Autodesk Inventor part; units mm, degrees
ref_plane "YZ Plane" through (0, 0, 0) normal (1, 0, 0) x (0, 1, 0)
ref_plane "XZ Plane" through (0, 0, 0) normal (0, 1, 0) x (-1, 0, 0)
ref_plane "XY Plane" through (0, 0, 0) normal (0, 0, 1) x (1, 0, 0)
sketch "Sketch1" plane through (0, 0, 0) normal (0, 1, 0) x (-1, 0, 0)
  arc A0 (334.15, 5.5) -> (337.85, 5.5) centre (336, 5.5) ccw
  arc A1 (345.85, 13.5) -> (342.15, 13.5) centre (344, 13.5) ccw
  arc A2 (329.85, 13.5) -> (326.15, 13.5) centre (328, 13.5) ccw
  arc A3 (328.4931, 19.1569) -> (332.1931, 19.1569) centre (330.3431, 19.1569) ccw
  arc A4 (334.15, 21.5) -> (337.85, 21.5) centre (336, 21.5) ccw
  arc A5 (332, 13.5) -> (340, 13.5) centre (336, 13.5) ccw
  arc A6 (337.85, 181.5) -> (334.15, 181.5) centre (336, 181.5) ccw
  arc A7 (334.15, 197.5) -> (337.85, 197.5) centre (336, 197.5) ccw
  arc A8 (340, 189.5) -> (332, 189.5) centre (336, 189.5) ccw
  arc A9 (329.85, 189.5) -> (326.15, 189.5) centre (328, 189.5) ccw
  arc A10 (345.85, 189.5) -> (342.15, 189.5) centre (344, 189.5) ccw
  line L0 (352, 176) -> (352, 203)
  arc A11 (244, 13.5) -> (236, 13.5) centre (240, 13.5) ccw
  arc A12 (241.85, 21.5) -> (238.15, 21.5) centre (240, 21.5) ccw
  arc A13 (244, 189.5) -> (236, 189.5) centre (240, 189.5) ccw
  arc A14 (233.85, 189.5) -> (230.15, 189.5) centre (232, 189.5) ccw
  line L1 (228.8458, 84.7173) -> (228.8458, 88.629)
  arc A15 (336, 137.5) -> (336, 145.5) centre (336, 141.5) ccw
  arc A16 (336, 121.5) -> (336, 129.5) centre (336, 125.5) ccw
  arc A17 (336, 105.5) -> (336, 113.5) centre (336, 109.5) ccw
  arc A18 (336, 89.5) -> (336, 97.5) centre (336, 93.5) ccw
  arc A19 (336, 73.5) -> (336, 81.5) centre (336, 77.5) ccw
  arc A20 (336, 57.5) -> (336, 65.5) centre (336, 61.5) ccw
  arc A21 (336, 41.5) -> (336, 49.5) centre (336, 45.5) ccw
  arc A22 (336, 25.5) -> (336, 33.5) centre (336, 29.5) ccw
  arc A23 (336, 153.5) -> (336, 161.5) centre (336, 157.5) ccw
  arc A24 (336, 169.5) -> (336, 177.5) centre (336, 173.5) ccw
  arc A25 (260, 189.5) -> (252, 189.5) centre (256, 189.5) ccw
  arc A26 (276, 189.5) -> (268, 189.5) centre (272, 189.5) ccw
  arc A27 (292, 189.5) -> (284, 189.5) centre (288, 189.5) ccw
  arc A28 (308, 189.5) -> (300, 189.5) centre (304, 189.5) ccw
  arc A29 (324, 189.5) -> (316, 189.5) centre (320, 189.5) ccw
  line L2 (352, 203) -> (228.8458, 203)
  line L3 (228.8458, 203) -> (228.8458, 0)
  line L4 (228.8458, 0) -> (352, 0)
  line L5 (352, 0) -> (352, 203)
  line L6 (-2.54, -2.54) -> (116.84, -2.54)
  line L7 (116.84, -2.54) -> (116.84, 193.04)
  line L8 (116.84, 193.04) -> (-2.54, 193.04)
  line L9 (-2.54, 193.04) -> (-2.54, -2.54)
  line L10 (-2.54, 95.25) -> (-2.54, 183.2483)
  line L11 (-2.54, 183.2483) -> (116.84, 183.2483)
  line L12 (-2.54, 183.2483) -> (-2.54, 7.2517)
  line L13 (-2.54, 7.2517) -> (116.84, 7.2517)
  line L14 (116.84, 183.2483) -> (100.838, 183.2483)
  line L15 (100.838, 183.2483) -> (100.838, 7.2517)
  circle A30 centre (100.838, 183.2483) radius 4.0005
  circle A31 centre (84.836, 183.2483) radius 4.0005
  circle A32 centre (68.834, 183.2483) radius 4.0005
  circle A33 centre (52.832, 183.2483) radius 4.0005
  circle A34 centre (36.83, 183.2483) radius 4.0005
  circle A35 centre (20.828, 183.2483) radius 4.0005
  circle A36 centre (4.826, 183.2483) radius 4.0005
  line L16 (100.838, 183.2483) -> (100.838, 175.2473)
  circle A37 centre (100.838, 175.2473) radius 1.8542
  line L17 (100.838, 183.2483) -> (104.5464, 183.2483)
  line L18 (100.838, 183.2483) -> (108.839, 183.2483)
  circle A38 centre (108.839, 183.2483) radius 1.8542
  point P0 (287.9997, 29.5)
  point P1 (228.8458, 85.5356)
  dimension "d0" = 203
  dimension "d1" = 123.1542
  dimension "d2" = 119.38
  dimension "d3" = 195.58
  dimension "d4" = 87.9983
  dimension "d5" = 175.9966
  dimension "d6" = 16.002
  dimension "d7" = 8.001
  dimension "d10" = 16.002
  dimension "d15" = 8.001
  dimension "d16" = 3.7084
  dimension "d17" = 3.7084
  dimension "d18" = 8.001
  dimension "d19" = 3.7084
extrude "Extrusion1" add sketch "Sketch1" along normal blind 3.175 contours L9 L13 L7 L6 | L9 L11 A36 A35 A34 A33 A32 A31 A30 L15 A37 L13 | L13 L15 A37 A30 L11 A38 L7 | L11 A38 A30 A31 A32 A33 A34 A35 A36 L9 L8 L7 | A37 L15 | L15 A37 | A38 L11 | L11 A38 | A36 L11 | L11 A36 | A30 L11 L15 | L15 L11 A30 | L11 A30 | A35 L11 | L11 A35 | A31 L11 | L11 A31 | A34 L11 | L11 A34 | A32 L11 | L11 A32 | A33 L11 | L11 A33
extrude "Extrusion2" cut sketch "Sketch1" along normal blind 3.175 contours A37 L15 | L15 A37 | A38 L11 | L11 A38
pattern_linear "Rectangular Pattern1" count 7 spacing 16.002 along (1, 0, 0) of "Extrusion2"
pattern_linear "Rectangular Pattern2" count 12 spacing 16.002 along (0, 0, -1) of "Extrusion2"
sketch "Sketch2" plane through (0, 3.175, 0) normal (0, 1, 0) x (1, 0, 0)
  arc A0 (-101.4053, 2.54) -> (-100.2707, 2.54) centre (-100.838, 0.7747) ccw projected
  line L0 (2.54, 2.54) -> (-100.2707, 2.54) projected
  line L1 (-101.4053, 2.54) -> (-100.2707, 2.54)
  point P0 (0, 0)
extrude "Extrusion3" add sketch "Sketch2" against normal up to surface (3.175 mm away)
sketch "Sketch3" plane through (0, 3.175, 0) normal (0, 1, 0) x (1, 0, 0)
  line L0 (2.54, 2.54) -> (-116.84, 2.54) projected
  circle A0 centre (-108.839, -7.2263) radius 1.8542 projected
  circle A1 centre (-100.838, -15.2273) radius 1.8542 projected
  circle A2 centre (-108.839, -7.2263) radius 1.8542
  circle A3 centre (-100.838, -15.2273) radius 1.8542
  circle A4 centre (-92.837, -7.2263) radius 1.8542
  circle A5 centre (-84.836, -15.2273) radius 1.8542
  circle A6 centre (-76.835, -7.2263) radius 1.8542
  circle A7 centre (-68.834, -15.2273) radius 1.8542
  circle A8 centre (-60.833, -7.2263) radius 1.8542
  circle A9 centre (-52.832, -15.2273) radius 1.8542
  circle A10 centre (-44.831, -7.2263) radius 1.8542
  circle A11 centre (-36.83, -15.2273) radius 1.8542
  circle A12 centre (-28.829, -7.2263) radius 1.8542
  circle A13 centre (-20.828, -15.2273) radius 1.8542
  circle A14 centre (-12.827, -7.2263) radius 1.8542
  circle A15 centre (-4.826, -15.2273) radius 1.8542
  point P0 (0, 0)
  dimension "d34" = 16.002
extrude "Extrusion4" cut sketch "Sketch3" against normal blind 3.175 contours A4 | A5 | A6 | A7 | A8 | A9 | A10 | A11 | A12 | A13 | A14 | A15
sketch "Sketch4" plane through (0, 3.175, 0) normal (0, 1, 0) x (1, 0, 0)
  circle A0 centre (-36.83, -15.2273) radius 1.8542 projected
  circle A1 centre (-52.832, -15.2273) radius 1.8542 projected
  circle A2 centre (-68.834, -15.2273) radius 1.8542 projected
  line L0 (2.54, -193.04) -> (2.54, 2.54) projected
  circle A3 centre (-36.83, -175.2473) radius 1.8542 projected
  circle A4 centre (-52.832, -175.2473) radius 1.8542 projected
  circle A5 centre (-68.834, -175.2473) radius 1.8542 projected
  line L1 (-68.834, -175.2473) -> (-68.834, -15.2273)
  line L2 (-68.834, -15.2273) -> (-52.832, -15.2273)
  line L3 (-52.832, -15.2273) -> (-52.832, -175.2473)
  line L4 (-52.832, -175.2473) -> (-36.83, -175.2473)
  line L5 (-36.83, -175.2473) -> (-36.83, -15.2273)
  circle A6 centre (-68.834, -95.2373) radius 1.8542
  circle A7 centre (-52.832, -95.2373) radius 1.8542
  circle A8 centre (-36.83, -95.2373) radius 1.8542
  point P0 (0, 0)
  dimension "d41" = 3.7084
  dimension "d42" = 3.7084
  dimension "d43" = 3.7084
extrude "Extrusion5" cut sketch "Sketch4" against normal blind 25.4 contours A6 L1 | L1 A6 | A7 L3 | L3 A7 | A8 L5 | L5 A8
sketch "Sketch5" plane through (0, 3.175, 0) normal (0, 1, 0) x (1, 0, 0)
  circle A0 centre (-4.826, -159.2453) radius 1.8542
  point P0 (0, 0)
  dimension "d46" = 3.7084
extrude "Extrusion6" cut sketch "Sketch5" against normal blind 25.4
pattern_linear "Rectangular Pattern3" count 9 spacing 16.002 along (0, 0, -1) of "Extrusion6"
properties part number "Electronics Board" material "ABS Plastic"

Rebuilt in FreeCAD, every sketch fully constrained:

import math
import FreeCAD as App
import Part
import Sketcher

V = App.Vector
Q = App.Units.Quantity

doc = App.newDocument("Part")
body = doc.addObject("PartDesign::Body", "Body")

# Sketch on XZ plane
sketch1 = body.newObject("Sketcher::SketchObject", "Sketch")
sketch1.AttachmentSupport = (doc.getObject("XZ_Plane"), [""])
sketch1.MapMode = "FlatFace"
sketch1.addGeometry(Part.LineSegment(V(2.54, -2.54, 0), V(-116.84, -2.54, 0)), False)
sketch1.addGeometry(Part.LineSegment(V(-116.84, -2.54, 0), V(-116.84, 193.04, 0)), False)
sketch1.addGeometry(Part.LineSegment(V(-116.84, 193.04, 0), V(2.54, 193.04, 0)), False)
sketch1.addGeometry(Part.LineSegment(V(2.54, 193.04, 0), V(2.54, -2.54, 0)), False)
sketch1.addConstraint(Sketcher.Constraint("Coincident", 0, 2, 1, 1))
sketch1.addConstraint(Sketcher.Constraint("Coincident", 1, 2, 2, 1))
sketch1.addConstraint(Sketcher.Constraint("Coincident", 2, 2, 3, 1))
sketch1.addConstraint(Sketcher.Constraint("Coincident", 3, 2, 0, 1))
sketch1.addConstraint(Sketcher.Constraint("Horizontal", 0))
sketch1.addConstraint(Sketcher.Constraint("Vertical", 1))
sketch1.addConstraint(Sketcher.Constraint("Horizontal", 2))
sketch1.addConstraint(Sketcher.Constraint("Vertical", 3))
sketch1.addConstraint(Sketcher.Constraint("DistanceX", 0, 2, 0, 1, Q("4.7 in")))
sketch1.addConstraint(Sketcher.Constraint("DistanceY", 1, 1, 1, 2, Q("7.7 in")))
sketch1.addConstraint(Sketcher.Constraint("DistanceX", 0, 2, -1, 1, Q("4.6 in")))
sketch1.addConstraint(Sketcher.Constraint("DistanceY", 0, 2, -1, 1, Q("0.1 in")))
pad1 = body.newObject("PartDesign::Pad", "Pad")
pad1.Profile = sketch1
pad1.Length = Q("0.125 in")
pad1.Reversed = True

# Sketch on XZ plane
sketch2 = body.newObject("Sketcher::SketchObject", "Sketch001")
sketch2.AttachmentSupport = (doc.getObject("XZ_Plane"), [""])
sketch2.MapMode = "FlatFace"
sketch2.addGeometry(Part.Circle(V(-100.838, 175.2473, 0), V(0, 0, 1), 1.8542), False)
sketch2.addGeometry(Part.Circle(V(-108.839, 183.2483, 0), V(0, 0, 1), 1.8542), False)
sketch2.addConstraint(Sketcher.Constraint("Equal", 0, 1))
sketch2.addConstraint(Sketcher.Constraint("Diameter", 0, Q("0.146 in")))
sketch2.addConstraint(Sketcher.Constraint("DistanceX", 1, 3, 0, 3, Q("0.315 in")))
sketch2.addConstraint(Sketcher.Constraint("DistanceY", 0, 3, 1, 3, Q("0.315 in")))
sketch2.addConstraint(Sketcher.Constraint("DistanceX", 0, 3, -1, 1, Q("3.97 in")))
sketch2.addConstraint(Sketcher.Constraint("DistanceY", -1, 1, 0, 3, Q("6.8995 in")))
pocket1 = body.newObject("PartDesign::Pocket", "Pocket")
pocket1.Profile = sketch2
pocket1.Length = Q("0.125 in")
doc.recompute()

linearpattern = body.newObject("PartDesign::LinearPattern", "LinearPattern")
linearpattern.Originals = [pocket1]
linearpattern.Direction = (doc.getObject("X_Axis"), [""])
linearpattern.Mode = "offset"
linearpattern.Offset = Q("0.63 in")
linearpattern.Occurrences = 7
body.Tip = linearpattern
doc.recompute()

linearpattern2 = body.newObject("PartDesign::LinearPattern", "LinearPattern001")
linearpattern2.Originals = [pocket1]
linearpattern2.Direction = (doc.getObject("Z_Axis"), [""])
linearpattern2.Mode = "offset"
linearpattern2.Offset = Q("0.63 in")
linearpattern2.Occurrences = 12
linearpattern2.Reversed = True
body.Tip = linearpattern2

# Sketch on XZ plane
sketch3 = body.newObject("Sketcher::SketchObject", "Sketch002")
sketch3.AttachmentSupport = (doc.getObject("XZ_Plane"), [""])
sketch3.MapMode = "FlatFace"
sketch3.AttachmentOffset = App.Placement(V(0, 0, -0.125 * 25.4), App.Rotation())
sketch3.addGeometry(Part.LineSegment(V(-100.2707, -2.54, 0), V(-101.4053, -2.54, 0)), False)
sketch3.addGeometry(Part.ArcOfCircle(Part.Circle(V(-100.838, -0.7747, 0), V(0, 0, 1), 1.854215), math.radians(-72.184578), math.radians(252.184578)), False)
sketch3.addConstraint(Sketcher.Constraint("Coincident", 0, 1, 1, 1))
sketch3.addConstraint(Sketcher.Constraint("Coincident", 1, 2, 0, 2))
sketch3.addConstraint(Sketcher.Constraint("Horizontal", 0))
sketch3.addConstraint(Sketcher.Constraint("Radius", 1, Q("0.073 in")))
sketch3.addConstraint(Sketcher.Constraint("DistanceY", 0, 1, -1, 1, Q("0.1 in")))
sketch3.addConstraint(Sketcher.Constraint("DistanceX", 1, 3, -1, 1, Q("3.97 in")))
sketch3.addConstraint(Sketcher.Constraint("DistanceX", 0, 2, 0, 1, 1.1346))
pad2 = body.newObject("PartDesign::Pad", "Pad001")
pad2.Profile = sketch3
pad2.Length = Q("0.125 in")

# Sketch on XZ plane
sketch4 = body.newObject("Sketcher::SketchObject", "Sketch003")
sketch4.AttachmentSupport = (doc.getObject("XZ_Plane"), [""])
sketch4.MapMode = "FlatFace"
sketch4.AttachmentOffset = App.Placement(V(0, 0, -0.125 * 25.4), App.Rotation())
sketch4.addGeometry(Part.Circle(V(-92.837, 7.2263, 0), V(0, 0, 1), 1.8542), False)
sketch4.addGeometry(Part.Circle(V(-84.836, 15.2273, 0), V(0, 0, 1), 1.8542), False)
sketch4.addGeometry(Part.Circle(V(-76.835, 7.2263, 0), V(0, 0, 1), 1.8542), False)
sketch4.addGeometry(Part.Circle(V(-68.834, 15.2273, 0), V(0, 0, 1), 1.8542), False)
sketch4.addGeometry(Part.Circle(V(-60.833, 7.2263, 0), V(0, 0, 1), 1.8542), False)
sketch4.addGeometry(Part.Circle(V(-52.832, 15.2273, 0), V(0, 0, 1), 1.8542), False)
sketch4.addGeometry(Part.Circle(V(-44.831, 7.2263, 0), V(0, 0, 1), 1.8542), False)
sketch4.addGeometry(Part.Circle(V(-36.83, 15.2273, 0), V(0, 0, 1), 1.8542), False)
sketch4.addGeometry(Part.Circle(V(-28.829, 7.2263, 0), V(0, 0, 1), 1.8542), False)
sketch4.addGeometry(Part.Circle(V(-20.828, 15.2273, 0), V(0, 0, 1), 1.8542), False)
sketch4.addGeometry(Part.Circle(V(-12.827, 7.2263, 0), V(0, 0, 1), 1.8542), False)
sketch4.addGeometry(Part.Circle(V(-4.826, 15.2273, 0), V(0, 0, 1), 1.8542), False)
sketch4.addConstraint(Sketcher.Constraint("Equal", 0, 1))
sketch4.addConstraint(Sketcher.Constraint("Equal", 1, 2))
sketch4.addConstraint(Sketcher.Constraint("Equal", 2, 3))
sketch4.addConstraint(Sketcher.Constraint("Equal", 3, 4))
sketch4.addConstraint(Sketcher.Constraint("Equal", 4, 5))
sketch4.addConstraint(Sketcher.Constraint("Equal", 5, 6))
sketch4.addConstraint(Sketcher.Constraint("Equal", 6, 7))
sketch4.addConstraint(Sketcher.Constraint("Equal", 7, 8))
sketch4.addConstraint(Sketcher.Constraint("Equal", 8, 9))
sketch4.addConstraint(Sketcher.Constraint("Equal", 9, 10))
sketch4.addConstraint(Sketcher.Constraint("Equal", 10, 11))
sketch4.addConstraint(Sketcher.Constraint("Horizontal", 0, 3, 2, 3))
sketch4.addConstraint(Sketcher.Constraint("Horizontal", 1, 3, 3, 3))
sketch4.addConstraint(Sketcher.Constraint("Horizontal", 2, 3, 4, 3))
sketch4.addConstraint(Sketcher.Constraint("Horizontal", 3, 3, 5, 3))
sketch4.addConstraint(Sketcher.Constraint("Horizontal", 4, 3, 6, 3))
sketch4.addConstraint(Sketcher.Constraint("Horizontal", 5, 3, 7, 3))
sketch4.addConstraint(Sketcher.Constraint("Horizontal", 6, 3, 8, 3))
sketch4.addConstraint(Sketcher.Constraint("Horizontal", 7, 3, 9, 3))
sketch4.addConstraint(Sketcher.Constraint("Horizontal", 8, 3, 10, 3))
sketch4.addConstraint(Sketcher.Constraint("Horizontal", 9, 3, 11, 3))
sketch4.addConstraint(Sketcher.Constraint("DistanceX", 0, 3, 2, 3, Q("0.63 in")))
sketch4.addConstraint(Sketcher.Constraint("DistanceX", 1, 3, 3, 3, Q("0.63 in")))
sketch4.addConstraint(Sketcher.Constraint("DistanceX", 2, 3, 4, 3, Q("0.63 in")))
sketch4.addConstraint(Sketcher.Constraint("DistanceX", 3, 3, 5, 3, Q("0.63 in")))
sketch4.addConstraint(Sketcher.Constraint("DistanceX", 4, 3, 6, 3, Q("0.63 in")))
sketch4.addConstraint(Sketcher.Constraint("DistanceX", 5, 3, 7, 3, Q("0.63 in")))
sketch4.addConstraint(Sketcher.Constraint("DistanceX", 6, 3, 8, 3, Q("0.63 in")))
sketch4.addConstraint(Sketcher.Constraint("DistanceX", 7, 3, 9, 3, Q("0.63 in")))
sketch4.addConstraint(Sketcher.Constraint("DistanceX", 8, 3, 10, 3, Q("0.63 in")))
sketch4.addConstraint(Sketcher.Constraint("DistanceX", 9, 3, 11, 3, Q("0.63 in")))
sketch4.addConstraint(Sketcher.Constraint("Diameter", 0, Q("0.146 in")))
sketch4.addConstraint(Sketcher.Constraint("DistanceX", 1, 3, -1, 1, Q("3.34 in")))
sketch4.addConstraint(Sketcher.Constraint("DistanceX", 0, 3, -1, 1, Q("3.655 in")))
sketch4.addConstraint(Sketcher.Constraint("DistanceY", 0, 3, 1, 3, Q("0.315 in")))
sketch4.addConstraint(Sketcher.Constraint("DistanceY", -1, 1, 0, 3, Q("0.2845 in")))
pocket2 = body.newObject("PartDesign::Pocket", "Pocket001")
pocket2.Profile = sketch4
pocket2.Length = Q("0.125 in")
pocket2.Reversed = True

# Sketch on XZ plane
sketch5 = body.newObject("Sketcher::SketchObject", "Sketch004")
sketch5.AttachmentSupport = (doc.getObject("XZ_Plane"), [""])
sketch5.MapMode = "FlatFace"
sketch5.AttachmentOffset = App.Placement(V(0, 0, -0.125 * 25.4), App.Rotation())
sketch5.addGeometry(Part.Circle(V(-68.834, 95.2373, 0), V(0, 0, 1), 1.8542), False)
sketch5.addGeometry(Part.Circle(V(-52.832, 95.2373, 0), V(0, 0, 1), 1.8542), False)
sketch5.addGeometry(Part.Circle(V(-36.83, 95.2373, 0), V(0, 0, 1), 1.8542), False)
sketch5.addConstraint(Sketcher.Constraint("Equal", 0, 1))
sketch5.addConstraint(Sketcher.Constraint("Equal", 1, 2))
sketch5.addConstraint(Sketcher.Constraint("Horizontal", 0, 3, 1, 3))
sketch5.addConstraint(Sketcher.Constraint("Horizontal", 1, 3, 2, 3))
sketch5.addConstraint(Sketcher.Constraint("Diameter", 0, Q("0.146 in")))
sketch5.addConstraint(Sketcher.Constraint("DistanceX", 0, 3, -1, 1, Q("2.71 in")))
sketch5.addConstraint(Sketcher.Constraint("DistanceX", 1, 3, -1, 1, Q("2.08 in")))
sketch5.addConstraint(Sketcher.Constraint("DistanceX", 2, 3, -1, 1, Q("1.45 in")))
sketch5.addConstraint(Sketcher.Constraint("DistanceY", -1, 1, 0, 3, Q("3.7495 in")))
pocket3 = body.newObject("PartDesign::Pocket", "Pocket002")
pocket3.Profile = sketch5
pocket3.Length = Q("1 in")
pocket3.Reversed = True

# Sketch on XZ plane
sketch6 = body.newObject("Sketcher::SketchObject", "Sketch005")
sketch6.AttachmentSupport = (doc.getObject("XZ_Plane"), [""])
sketch6.MapMode = "FlatFace"
sketch6.AttachmentOffset = App.Placement(V(0, 0, -0.125 * 25.4), App.Rotation())
sketch6.addGeometry(Part.Circle(V(-4.826, 159.2453, 0), V(0, 0, 1), 1.8542), False)
sketch6.addConstraint(Sketcher.Constraint("Diameter", 0, Q("0.146 in")))
sketch6.addConstraint(Sketcher.Constraint("DistanceX", 0, 3, -1, 1, Q("0.19 in")))
sketch6.addConstraint(Sketcher.Constraint("DistanceY", -1, 1, 0, 3, Q("6.2695 in")))
pocket4 = body.newObject("PartDesign::Pocket", "Pocket003")
pocket4.Profile = sketch6
pocket4.Length = Q("1 in")
pocket4.Reversed = True
doc.recompute()

linearpattern3 = body.newObject("PartDesign::LinearPattern", "LinearPattern002")
linearpattern3.Originals = [pocket4]
linearpattern3.Direction = (doc.getObject("Z_Axis"), [""])
linearpattern3.Mode = "offset"
linearpattern3.Offset = Q("0.63 in")
linearpattern3.Occurrences = 9
linearpattern3.Reversed = True
body.Tip = linearpattern3

doc.recompute()
